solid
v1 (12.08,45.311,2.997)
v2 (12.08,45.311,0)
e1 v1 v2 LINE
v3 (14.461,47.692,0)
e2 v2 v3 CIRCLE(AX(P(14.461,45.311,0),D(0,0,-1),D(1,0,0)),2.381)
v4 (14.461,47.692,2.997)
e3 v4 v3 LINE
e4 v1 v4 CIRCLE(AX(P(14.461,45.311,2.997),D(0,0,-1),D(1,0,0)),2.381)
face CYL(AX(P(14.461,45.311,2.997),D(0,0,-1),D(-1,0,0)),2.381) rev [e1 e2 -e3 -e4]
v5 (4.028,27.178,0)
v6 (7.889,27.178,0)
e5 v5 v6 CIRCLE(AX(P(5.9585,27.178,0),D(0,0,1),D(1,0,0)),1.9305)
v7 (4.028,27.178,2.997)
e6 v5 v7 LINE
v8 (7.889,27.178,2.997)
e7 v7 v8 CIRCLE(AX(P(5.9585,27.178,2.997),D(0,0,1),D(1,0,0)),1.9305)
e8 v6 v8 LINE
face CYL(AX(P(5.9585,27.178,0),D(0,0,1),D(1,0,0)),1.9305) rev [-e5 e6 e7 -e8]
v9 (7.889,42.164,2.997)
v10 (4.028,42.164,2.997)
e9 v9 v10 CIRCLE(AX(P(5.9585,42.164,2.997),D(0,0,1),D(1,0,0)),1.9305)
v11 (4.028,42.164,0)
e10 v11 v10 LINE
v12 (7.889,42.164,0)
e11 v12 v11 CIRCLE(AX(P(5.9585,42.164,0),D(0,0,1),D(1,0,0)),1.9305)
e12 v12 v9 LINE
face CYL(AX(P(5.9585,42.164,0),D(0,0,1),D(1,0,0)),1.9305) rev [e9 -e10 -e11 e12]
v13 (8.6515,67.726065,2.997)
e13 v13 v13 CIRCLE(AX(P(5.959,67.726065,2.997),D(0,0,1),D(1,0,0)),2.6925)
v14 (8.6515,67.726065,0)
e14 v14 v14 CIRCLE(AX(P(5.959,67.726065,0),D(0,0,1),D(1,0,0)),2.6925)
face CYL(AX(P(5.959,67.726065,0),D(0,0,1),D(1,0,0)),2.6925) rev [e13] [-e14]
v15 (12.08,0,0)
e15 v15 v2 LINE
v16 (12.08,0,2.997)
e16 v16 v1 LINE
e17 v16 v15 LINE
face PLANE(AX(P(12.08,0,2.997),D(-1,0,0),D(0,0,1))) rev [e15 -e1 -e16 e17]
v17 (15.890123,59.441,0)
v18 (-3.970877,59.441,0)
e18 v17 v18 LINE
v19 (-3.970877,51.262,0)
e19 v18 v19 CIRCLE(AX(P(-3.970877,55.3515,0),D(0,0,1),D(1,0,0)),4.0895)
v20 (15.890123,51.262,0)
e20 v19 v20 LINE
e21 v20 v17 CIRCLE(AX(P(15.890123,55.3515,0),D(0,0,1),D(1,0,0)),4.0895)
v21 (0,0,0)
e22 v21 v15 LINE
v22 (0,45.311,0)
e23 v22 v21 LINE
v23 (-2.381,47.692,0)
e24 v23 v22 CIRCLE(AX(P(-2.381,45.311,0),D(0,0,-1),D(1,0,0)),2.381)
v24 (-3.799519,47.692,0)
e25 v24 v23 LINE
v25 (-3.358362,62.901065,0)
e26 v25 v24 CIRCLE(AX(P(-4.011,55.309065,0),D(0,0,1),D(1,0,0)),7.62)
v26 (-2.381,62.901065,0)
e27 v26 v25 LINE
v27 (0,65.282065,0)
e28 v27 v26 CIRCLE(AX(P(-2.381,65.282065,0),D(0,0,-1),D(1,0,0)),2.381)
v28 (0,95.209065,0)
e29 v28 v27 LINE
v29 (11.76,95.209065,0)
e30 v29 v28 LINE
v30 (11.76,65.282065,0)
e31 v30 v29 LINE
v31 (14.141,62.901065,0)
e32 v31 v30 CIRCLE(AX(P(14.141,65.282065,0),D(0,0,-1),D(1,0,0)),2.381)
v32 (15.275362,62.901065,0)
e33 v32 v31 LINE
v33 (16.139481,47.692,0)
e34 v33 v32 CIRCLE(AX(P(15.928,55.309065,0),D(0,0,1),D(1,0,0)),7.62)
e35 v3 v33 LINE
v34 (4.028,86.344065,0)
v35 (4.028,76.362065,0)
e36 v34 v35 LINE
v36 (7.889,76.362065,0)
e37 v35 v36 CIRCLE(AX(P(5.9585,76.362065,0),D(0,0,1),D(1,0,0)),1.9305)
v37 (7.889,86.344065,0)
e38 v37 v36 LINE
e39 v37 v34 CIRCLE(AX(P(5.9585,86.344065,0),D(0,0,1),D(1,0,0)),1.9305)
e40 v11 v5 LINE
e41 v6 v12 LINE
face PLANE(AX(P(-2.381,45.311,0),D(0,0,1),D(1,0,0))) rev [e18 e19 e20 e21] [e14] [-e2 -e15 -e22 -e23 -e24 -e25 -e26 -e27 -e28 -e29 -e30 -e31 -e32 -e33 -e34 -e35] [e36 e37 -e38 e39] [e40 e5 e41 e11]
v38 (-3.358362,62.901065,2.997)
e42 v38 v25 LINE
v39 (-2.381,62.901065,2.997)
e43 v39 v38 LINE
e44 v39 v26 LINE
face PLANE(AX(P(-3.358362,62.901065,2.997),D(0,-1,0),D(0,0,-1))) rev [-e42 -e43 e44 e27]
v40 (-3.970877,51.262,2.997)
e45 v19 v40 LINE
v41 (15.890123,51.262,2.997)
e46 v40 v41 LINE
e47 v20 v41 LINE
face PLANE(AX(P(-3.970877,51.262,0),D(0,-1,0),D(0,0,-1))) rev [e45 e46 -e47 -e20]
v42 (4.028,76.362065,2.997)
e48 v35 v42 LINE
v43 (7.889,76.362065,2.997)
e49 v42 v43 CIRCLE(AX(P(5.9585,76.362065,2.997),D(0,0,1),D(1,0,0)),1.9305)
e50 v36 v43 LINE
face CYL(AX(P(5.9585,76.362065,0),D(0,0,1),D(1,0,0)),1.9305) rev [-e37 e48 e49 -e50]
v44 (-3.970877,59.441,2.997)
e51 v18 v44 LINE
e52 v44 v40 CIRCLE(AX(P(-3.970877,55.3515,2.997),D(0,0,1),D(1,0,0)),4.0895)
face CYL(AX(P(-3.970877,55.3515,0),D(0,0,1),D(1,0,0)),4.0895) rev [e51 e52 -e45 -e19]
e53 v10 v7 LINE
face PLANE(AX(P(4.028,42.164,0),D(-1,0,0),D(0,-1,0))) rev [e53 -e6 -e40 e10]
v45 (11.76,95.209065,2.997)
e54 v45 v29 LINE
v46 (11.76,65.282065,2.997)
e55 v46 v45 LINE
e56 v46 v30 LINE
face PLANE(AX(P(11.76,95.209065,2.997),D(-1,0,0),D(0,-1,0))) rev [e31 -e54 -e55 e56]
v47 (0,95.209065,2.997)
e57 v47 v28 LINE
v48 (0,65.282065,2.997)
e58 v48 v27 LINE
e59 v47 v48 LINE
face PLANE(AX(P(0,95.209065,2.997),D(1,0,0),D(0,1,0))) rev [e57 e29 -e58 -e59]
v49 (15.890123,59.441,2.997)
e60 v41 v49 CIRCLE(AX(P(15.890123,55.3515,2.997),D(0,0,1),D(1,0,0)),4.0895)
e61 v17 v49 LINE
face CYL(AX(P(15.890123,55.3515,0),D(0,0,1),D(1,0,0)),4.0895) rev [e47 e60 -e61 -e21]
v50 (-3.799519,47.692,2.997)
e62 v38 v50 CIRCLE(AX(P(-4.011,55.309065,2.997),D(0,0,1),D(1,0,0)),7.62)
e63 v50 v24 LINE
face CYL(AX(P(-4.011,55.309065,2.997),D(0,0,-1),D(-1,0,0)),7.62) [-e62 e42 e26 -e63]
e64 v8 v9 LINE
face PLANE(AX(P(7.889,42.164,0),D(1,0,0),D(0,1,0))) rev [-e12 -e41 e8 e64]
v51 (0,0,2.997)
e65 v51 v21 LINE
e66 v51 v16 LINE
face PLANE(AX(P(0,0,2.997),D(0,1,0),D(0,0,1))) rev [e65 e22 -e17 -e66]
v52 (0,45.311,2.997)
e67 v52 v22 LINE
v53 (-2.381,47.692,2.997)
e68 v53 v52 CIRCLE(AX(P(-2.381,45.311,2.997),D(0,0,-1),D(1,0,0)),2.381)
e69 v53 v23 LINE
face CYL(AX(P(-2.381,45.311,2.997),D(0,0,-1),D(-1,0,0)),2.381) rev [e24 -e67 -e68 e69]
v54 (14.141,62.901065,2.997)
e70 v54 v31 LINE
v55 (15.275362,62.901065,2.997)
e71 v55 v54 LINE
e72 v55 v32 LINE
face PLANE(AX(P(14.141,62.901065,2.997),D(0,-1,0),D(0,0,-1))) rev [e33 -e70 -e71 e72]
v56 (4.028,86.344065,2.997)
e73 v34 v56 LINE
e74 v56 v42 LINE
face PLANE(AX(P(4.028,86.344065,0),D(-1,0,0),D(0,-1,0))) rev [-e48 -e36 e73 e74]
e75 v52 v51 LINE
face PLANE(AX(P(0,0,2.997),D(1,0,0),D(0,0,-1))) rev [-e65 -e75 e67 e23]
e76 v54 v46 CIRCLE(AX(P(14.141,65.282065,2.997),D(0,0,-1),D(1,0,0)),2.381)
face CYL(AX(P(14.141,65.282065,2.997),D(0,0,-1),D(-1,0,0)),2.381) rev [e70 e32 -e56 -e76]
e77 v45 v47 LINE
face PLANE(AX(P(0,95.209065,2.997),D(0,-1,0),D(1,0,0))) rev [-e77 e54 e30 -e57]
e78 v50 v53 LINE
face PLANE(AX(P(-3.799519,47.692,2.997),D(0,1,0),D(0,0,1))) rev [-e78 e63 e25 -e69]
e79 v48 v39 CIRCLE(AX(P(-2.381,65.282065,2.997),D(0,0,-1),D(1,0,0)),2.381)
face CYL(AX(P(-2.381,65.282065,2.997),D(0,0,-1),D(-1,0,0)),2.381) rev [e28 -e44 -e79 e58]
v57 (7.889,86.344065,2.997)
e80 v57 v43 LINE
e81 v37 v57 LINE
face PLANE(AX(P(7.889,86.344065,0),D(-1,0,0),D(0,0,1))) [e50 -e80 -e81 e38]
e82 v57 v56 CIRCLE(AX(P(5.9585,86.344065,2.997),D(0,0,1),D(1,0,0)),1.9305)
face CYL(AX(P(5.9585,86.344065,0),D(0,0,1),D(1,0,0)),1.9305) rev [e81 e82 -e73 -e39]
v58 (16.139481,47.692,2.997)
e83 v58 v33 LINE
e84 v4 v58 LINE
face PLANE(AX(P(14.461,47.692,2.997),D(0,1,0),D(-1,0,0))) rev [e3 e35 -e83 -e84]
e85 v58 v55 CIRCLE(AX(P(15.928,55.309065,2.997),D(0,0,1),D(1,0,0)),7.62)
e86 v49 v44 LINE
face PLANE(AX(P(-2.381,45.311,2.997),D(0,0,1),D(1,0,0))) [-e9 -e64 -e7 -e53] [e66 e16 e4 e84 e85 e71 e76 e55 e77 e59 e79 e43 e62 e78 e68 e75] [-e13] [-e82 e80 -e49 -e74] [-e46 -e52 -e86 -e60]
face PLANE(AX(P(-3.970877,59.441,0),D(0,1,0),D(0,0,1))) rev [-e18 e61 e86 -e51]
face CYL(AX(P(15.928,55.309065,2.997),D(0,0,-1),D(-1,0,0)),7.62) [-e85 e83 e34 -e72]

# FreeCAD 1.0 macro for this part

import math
import FreeCAD as App
import Part
import Sketcher

V = App.Vector
Q = App.Units.Quantity

doc = App.newDocument("Part")
body = doc.addObject("PartDesign::Body", "Body")

# Sketch on XY plane
sketch1 = body.newObject("Sketcher::SketchObject", "Sketch")
sketch1.AttachmentSupport = (doc.getObject("XY_Plane"), [""])
sketch1.MapMode = "FlatFace"
sketch1.addGeometry([
    Part.LineSegment(V(0, 0, 0), V(12.08, 0, 0)),  # 0
    Part.LineSegment(V(12.08, 0, 0), V(12.08, 45.311, 0)),  # 1
    Part.ArcOfCircle(Part.Circle(V(14.461, 45.311, 0), V(0, 0, 1), 2.381), math.radians(90), math.radians(180)),  # 2
    Part.LineSegment(V(14.461, 47.692, 0), V(16.139481, 47.692, 0)),  # 3
    Part.ArcOfCircle(Part.Circle(V(15.928, 55.309065, 0), V(0, 0, 1), 7.62), math.radians(-88.409639), math.radians(94.913288)),  # 4
    Part.LineSegment(V(15.275362, 62.901065, 0), V(14.141, 62.901065, 0)),  # 5
    Part.ArcOfCircle(Part.Circle(V(14.141, 65.282065, 0), V(0, 0, 1), 2.381), math.radians(180), math.radians(270)),  # 6
    Part.LineSegment(V(11.76, 65.282065, 0), V(11.76, 95.209065, 0)),  # 7
    Part.LineSegment(V(11.76, 95.209065, 0), V(0, 95.209065, 0)),  # 8
    Part.LineSegment(V(0, 95.209065, 0), V(0, 65.282065, 0)),  # 9
    Part.ArcOfCircle(Part.Circle(V(-2.381, 65.282065, 0), V(0, 0, 1), 2.381), math.radians(-90), math.radians(0)),  # 10
    Part.LineSegment(V(-2.381, 62.901065, 0), V(-3.358362, 62.901065, 0)),  # 11
    Part.ArcOfCircle(Part.Circle(V(-4.011, 55.309065, 0), V(0, 0, 1), 7.62), math.radians(85.086712), math.radians(271.590361)),  # 12
    Part.LineSegment(V(-3.799519, 47.692, 0), V(-2.381, 47.692, 0)),  # 13
    Part.ArcOfCircle(Part.Circle(V(-2.381, 45.311, 0), V(0, 0, 1), 2.381), math.radians(0), math.radians(90)),  # 14
    Part.LineSegment(V(0, 45.311, 0), V(0, 0, 0)),  # 15
], False)
sketch1.addConstraint([
    Sketcher.Constraint("Coincident", 0, 2, 1, 1),
    Sketcher.Constraint("Tangent", 1, 2, 2, 2),
    Sketcher.Constraint("Tangent", 2, 1, 3, 1),
    Sketcher.Constraint("Coincident", 3, 2, 4, 1),
    Sketcher.Constraint("Coincident", 4, 2, 5, 1),
    Sketcher.Constraint("Tangent", 5, 2, 6, 2),
    Sketcher.Constraint("Tangent", 6, 1, 7, 1),
    Sketcher.Constraint("Coincident", 7, 2, 8, 1),
    Sketcher.Constraint("Coincident", 8, 2, 9, 1),
    Sketcher.Constraint("Tangent", 9, 2, 10, 2),
    Sketcher.Constraint("Tangent", 10, 1, 11, 1),
    Sketcher.Constraint("Coincident", 11, 2, 12, 1),
    Sketcher.Constraint("Coincident", 12, 2, 13, 1),
    Sketcher.Constraint("Tangent", 13, 2, 14, 2),
    Sketcher.Constraint("Tangent", 14, 1, 15, 1),
    Sketcher.Constraint("Coincident", 15, 2, 0, 1),
    Sketcher.Constraint("Horizontal", 0),
    Sketcher.Constraint("Vertical", 1),
    Sketcher.Constraint("Horizontal", 3),
    Sketcher.Constraint("Horizontal", 5),
    Sketcher.Constraint("Vertical", 7),
    Sketcher.Constraint("Horizontal", 8),
    Sketcher.Constraint("Vertical", 9),
    Sketcher.Constraint("Horizontal", 11),
    Sketcher.Constraint("Horizontal", 13),
    Sketcher.Constraint("Vertical", 15),
    Sketcher.Constraint("Coincident", 15, 2, -1, 1),
    Sketcher.Constraint("Equal", 2, 6),
    Sketcher.Constraint("Equal", 6, 10),
    Sketcher.Constraint("Equal", 4, 12),
    Sketcher.Constraint("Equal", 10, 14),
    Sketcher.Constraint("PointOnObject", 8, 2, -2),
    Sketcher.Constraint("Horizontal", 6, 3, 10, 3),
    Sketcher.Constraint("Horizontal", 4, 3, 12, 3),
    Sketcher.Constraint("Horizontal", 2, 3, 14, 3),
    Sketcher.Constraint("Radius", 4, Q("0.3 in")),
    Sketcher.Constraint("Radius", 2, 2.381),
    Sketcher.Constraint("DistanceX", 12, 3, 4, 3, Q("0.785 in")),
    Sketcher.Constraint("DistanceX", 0, 1, 0, 2, 12.08),
    Sketcher.Constraint("DistanceX", 8, 2, 8, 1, 11.76),
    Sketcher.Constraint("DistanceY", 1, 1, 1, 2, 45.311),
    Sketcher.Constraint("DistanceY", 7, 1, 7, 2, 29.927),
    Sketcher.Constraint("DistanceX", 6, 1, 4, 2, Q("0.1384001 in")),
    Sketcher.Constraint("DistanceX", 3, 1, 3, 2, 1.678481),
    Sketcher.Constraint("DistanceX", -1, 1, 4, 3, 15.928),
])
pad1 = body.newObject("PartDesign::Pad", "Pad")
pad1.Profile = sketch1
pad1.Length = 2.997

# Sketch on XY plane
sketch2 = body.newObject("Sketcher::SketchObject", "Sketch001")
sketch2.AttachmentSupport = (doc.getObject("XY_Plane"), [""])
sketch2.MapMode = "FlatFace"
sketch2.AttachmentOffset = App.Placement(V(0, 0, 2.997), App.Rotation())
sketch2.addGeometry(Part.Circle(V(5.959, 67.726065, 0), V(0, 0, 1), 2.6925), False)
sketch2.addConstraint([
    Sketcher.Constraint("Diameter", 0, 5.385),
    Sketcher.Constraint("DistanceX", -1, 1, 0, 3, 5.959),
    Sketcher.Constraint("DistanceY", -1, 1, 0, 3, 67.726065),
])
pocket1 = body.newObject("PartDesign::Pocket", "Pocket")
pocket1.Profile = sketch2
pocket1.Type = "ThroughAll"

# Sketch on XY plane
sketch3 = body.newObject("Sketcher::SketchObject", "Sketch002")
sketch3.AttachmentSupport = (doc.getObject("XY_Plane"), [""])
sketch3.MapMode = "FlatFace"
sketch3.AttachmentOffset = App.Placement(V(0, 0, 2.997), App.Rotation())
sketch3.addGeometry([
    Part.LineSegment(V(15.890123, 59.441, 0), V(-3.970877, 59.441, 0)),
    Part.ArcOfCircle(Part.Circle(V(-3.970877, 55.3515, 0), V(0, 0, 1), 4.0895), math.radians(90), math.radians(270)),
    Part.LineSegment(V(-3.970877, 51.262, 0), V(15.890123, 51.262, 0)),
    Part.ArcOfCircle(Part.Circle(V(15.890123, 55.3515, 0), V(0, 0, 1), 4.0895), math.radians(-90), math.radians(90)),
], False)
sketch3.addConstraint([
    Sketcher.Constraint("Tangent", 0, 2, 1, 1),
    Sketcher.Constraint("Tangent", 1, 2, 2, 1),
    Sketcher.Constraint("Tangent", 2, 2, 3, 1),
    Sketcher.Constraint("Tangent", 3, 2, 0, 1),
    Sketcher.Constraint("Horizontal", 0),
    Sketcher.Constraint("Horizontal", 2),
    Sketcher.Constraint("Radius", 1, 4.0895),
    Sketcher.Constraint("DistanceX", 0, 2, 0, 1, 19.861),
    Sketcher.Constraint("DistanceY", -1, 1, 1, 3, 55.3515),
    Sketcher.Constraint("DistanceX", 1, 3, -1, 1, 3.970877),
])
pocket2 = body.newObject("PartDesign::Pocket", "Pocket001")
pocket2.Profile = sketch3
pocket2.Type = "ThroughAll"

# Sketch on XY plane
sketch4 = body.newObject("Sketcher::SketchObject", "Sketch003")
sketch4.AttachmentSupport = (doc.getObject("XY_Plane"), [""])
sketch4.MapMode = "FlatFace"
sketch4.AttachmentOffset = App.Placement(V(0, 0, 2.997), App.Rotation())
sketch4.addGeometry([
    Part.LineSegment(V(7.889, 76.362065, 0), V(7.889, 86.344065, 0)),
    Part.ArcOfCircle(Part.Circle(V(5.9585, 86.344065, 0), V(0, 0, 1), 1.9305), math.radians(0), math.radians(180)),
    Part.LineSegment(V(4.028, 86.344065, 0), V(4.028, 76.362065, 0)),
    Part.ArcOfCircle(Part.Circle(V(5.9585, 76.362065, 0), V(0, 0, 1), 1.9305), math.radians(180), math.radians(360)),
], False)
sketch4.addConstraint([
    Sketcher.Constraint("Tangent", 0, 2, 1, 1),
    Sketcher.Constraint("Tangent", 1, 2, 2, 1),
    Sketcher.Constraint("Tangent", 2, 2, 3, 1),
    Sketcher.Constraint("Tangent", 3, 2, 0, 1),
    Sketcher.Constraint("Vertical", 0),
    Sketcher.Constraint("Vertical", 2),
    Sketcher.Constraint("Radius", 1, 1.9305),
    Sketcher.Constraint("DistanceY", 0, 1, 0, 2, 9.982),
    Sketcher.Constraint("DistanceX", -1, 1, 1, 3, 5.9585),
    Sketcher.Constraint("DistanceY", -1, 1, 1, 3, 86.344065),
])
pocket3 = body.newObject("PartDesign::Pocket", "Pocket002")
pocket3.Profile = sketch4
pocket3.Type = "ThroughAll"

# Sketch on XY plane
sketch5 = body.newObject("Sketcher::SketchObject", "Sketch004")
sketch5.AttachmentSupport = (doc.getObject("XY_Plane"), [""])
sketch5.MapMode = "FlatFace"
sketch5.AttachmentOffset = App.Placement(V(0, 0, 2.997), App.Rotation())
sketch5.addGeometry([
    Part.LineSegment(V(7.889, 27.178, 0), V(7.889, 42.164, 0)),
    Part.ArcOfCircle(Part.Circle(V(5.9585, 42.164, 0), V(0, 0, 1), 1.9305), math.radians(0), math.radians(180)),
    Part.LineSegment(V(4.028, 42.164, 0), V(4.028, 27.178, 0)),
    Part.ArcOfCircle(Part.Circle(V(5.9585, 27.178, 0), V(0, 0, 1), 1.9305), math.radians(180), math.radians(360)),
], False)
sketch5.addConstraint([
    Sketcher.Constraint("Tangent", 0, 2, 1, 1),
    Sketcher.Constraint("Tangent", 1, 2, 2, 1),
    Sketcher.Constraint("Tangent", 2, 2, 3, 1),
    Sketcher.Constraint("Tangent", 3, 2, 0, 1),
    Sketcher.Constraint("Vertical", 0),
    Sketcher.Constraint("Vertical", 2),
    Sketcher.Constraint("DistanceY", 0, 1, 0, 2, Q("0.59 in")),
    Sketcher.Constraint("DistanceY", -1, 1, 1, 3, Q("1.66 in")),
    Sketcher.Constraint("Radius", 1, 1.9305),
    Sketcher.Constraint("DistanceX", -1, 1, 1, 3, 5.9585),
])
pocket4 = body.newObject("PartDesign::Pocket", "Pocket003")
pocket4.Profile = sketch5
pocket4.Type = "ThroughAll"

doc.recompute()
